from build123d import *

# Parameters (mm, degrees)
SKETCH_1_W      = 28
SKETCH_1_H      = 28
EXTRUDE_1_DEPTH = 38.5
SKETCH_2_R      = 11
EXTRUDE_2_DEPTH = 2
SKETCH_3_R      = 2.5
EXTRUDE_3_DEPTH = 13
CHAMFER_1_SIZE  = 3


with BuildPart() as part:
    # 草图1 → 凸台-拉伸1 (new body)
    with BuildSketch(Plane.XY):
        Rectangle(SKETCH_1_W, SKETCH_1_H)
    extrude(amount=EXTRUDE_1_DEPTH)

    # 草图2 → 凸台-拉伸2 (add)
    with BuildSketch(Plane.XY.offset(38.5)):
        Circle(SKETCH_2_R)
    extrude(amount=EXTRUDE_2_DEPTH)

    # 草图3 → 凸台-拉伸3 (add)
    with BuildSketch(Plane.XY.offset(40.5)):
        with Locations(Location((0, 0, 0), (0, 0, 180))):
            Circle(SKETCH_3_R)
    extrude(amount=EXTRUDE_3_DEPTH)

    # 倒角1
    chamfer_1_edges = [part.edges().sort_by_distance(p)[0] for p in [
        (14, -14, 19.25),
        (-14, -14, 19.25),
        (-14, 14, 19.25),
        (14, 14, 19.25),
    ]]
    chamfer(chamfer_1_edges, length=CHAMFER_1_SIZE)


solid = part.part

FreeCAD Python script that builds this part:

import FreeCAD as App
import Part
import Sketcher
from FreeCAD import Vector


def edges_at(feature, points):
    """Names of the edges that pass closest to the given points."""
    edges = feature.Shape.Edges
    near = lambda p: min(range(len(edges)), key=lambda i: edges[i].distToShape(Part.Vertex(*p))[0])
    return sorted({f"Edge{near(p) + 1}" for p in points})


def add_polygon(sketch, points):
    """Adds a closed chain of lines whose ends are joined by coincident constraints."""
    first, n = sketch.GeometryCount, len(points)
    for a, b in zip(points, points[1:] + points[:1]):
        sketch.addGeometry(Part.LineSegment(App.Vector(*a, 0), App.Vector(*b, 0)), False)
    for i in range(n):
        sketch.addConstraint(Sketcher.Constraint("Coincident", first + i, 2, first + (i + 1) % n, 1))

doc = App.newDocument("Part")
body = doc.addObject("PartDesign::Body", "Body")

sketch1 = body.newObject("Sketcher::SketchObject", "Sketch")
sketch1.AttachmentSupport = (doc.getObject("XY_Plane"), [""])
sketch1.MapMode = "FlatFace"
add_polygon(sketch1, [(-14, 14), (-14, -14), (14, -14), (14, 14)])
sketch1.addConstraint([
    Sketcher.Constraint("Vertical", 0),
    Sketcher.Constraint("Horizontal", 1),
    Sketcher.Constraint("Vertical", 2),
    Sketcher.Constraint("Horizontal", 3),
    Sketcher.Constraint("Symmetric", 0, 2, 2, 2, -1, 1),
    Sketcher.Constraint("Equal", 3, 0),
    Sketcher.Constraint("DistanceX", 1, 1, 1, 2, 28.0),
])
pad1 = body.newObject("PartDesign::Pad", "Pad")
pad1.Profile = sketch1
pad1.Length = 38.5

sketch2 = body.newObject("Sketcher::SketchObject", "Sketch001")
sketch2.AttachmentSupport = (doc.getObject("XY_Plane"), [""])
sketch2.MapMode = "FlatFace"
sketch2.AttachmentOffset = App.Placement(Vector(0, 0, 38.5), App.Rotation())
sketch2.addGeometry(Part.Circle(Vector(0, 0, 0), Vector(0, 0, 1), 11), False)
sketch2.addConstraint([
    Sketcher.Constraint("Coincident", 0, 3, -1, 1),
    Sketcher.Constraint("Diameter", 0, 22.0),
])
pad2 = body.newObject("PartDesign::Pad", "Pad001")
pad2.Profile = sketch2
pad2.Length = 2

sketch3 = body.newObject("Sketcher::SketchObject", "Sketch002")
sketch3.AttachmentSupport = (doc.getObject("XY_Plane"), [""])
sketch3.MapMode = "FlatFace"
sketch3.AttachmentOffset = App.Placement(Vector(0, 0, 40.5), App.Rotation())
sketch3.addGeometry(Part.Circle(Vector(0, 0, 0), Vector(0, 0, 1), 2.5), False)
sketch3.addConstraint([
    Sketcher.Constraint("Coincident", 0, 3, -1, 1),
    Sketcher.Constraint("Diameter", 0, 5.0),
])
pad3 = body.newObject("PartDesign::Pad", "Pad002")
pad3.Profile = sketch3
pad3.Length = 13
doc.recompute()

chamfer = body.newObject("PartDesign::Chamfer", "Chamfer")
chamfer.Base = (pad3, edges_at(pad3, [
    (14, -14, 19.25),
    (-14, -14, 19.25),
    (-14, 14, 19.25),
    (14, 14, 19.25),
]))
chamfer.Size = 3

doc.recompute()
